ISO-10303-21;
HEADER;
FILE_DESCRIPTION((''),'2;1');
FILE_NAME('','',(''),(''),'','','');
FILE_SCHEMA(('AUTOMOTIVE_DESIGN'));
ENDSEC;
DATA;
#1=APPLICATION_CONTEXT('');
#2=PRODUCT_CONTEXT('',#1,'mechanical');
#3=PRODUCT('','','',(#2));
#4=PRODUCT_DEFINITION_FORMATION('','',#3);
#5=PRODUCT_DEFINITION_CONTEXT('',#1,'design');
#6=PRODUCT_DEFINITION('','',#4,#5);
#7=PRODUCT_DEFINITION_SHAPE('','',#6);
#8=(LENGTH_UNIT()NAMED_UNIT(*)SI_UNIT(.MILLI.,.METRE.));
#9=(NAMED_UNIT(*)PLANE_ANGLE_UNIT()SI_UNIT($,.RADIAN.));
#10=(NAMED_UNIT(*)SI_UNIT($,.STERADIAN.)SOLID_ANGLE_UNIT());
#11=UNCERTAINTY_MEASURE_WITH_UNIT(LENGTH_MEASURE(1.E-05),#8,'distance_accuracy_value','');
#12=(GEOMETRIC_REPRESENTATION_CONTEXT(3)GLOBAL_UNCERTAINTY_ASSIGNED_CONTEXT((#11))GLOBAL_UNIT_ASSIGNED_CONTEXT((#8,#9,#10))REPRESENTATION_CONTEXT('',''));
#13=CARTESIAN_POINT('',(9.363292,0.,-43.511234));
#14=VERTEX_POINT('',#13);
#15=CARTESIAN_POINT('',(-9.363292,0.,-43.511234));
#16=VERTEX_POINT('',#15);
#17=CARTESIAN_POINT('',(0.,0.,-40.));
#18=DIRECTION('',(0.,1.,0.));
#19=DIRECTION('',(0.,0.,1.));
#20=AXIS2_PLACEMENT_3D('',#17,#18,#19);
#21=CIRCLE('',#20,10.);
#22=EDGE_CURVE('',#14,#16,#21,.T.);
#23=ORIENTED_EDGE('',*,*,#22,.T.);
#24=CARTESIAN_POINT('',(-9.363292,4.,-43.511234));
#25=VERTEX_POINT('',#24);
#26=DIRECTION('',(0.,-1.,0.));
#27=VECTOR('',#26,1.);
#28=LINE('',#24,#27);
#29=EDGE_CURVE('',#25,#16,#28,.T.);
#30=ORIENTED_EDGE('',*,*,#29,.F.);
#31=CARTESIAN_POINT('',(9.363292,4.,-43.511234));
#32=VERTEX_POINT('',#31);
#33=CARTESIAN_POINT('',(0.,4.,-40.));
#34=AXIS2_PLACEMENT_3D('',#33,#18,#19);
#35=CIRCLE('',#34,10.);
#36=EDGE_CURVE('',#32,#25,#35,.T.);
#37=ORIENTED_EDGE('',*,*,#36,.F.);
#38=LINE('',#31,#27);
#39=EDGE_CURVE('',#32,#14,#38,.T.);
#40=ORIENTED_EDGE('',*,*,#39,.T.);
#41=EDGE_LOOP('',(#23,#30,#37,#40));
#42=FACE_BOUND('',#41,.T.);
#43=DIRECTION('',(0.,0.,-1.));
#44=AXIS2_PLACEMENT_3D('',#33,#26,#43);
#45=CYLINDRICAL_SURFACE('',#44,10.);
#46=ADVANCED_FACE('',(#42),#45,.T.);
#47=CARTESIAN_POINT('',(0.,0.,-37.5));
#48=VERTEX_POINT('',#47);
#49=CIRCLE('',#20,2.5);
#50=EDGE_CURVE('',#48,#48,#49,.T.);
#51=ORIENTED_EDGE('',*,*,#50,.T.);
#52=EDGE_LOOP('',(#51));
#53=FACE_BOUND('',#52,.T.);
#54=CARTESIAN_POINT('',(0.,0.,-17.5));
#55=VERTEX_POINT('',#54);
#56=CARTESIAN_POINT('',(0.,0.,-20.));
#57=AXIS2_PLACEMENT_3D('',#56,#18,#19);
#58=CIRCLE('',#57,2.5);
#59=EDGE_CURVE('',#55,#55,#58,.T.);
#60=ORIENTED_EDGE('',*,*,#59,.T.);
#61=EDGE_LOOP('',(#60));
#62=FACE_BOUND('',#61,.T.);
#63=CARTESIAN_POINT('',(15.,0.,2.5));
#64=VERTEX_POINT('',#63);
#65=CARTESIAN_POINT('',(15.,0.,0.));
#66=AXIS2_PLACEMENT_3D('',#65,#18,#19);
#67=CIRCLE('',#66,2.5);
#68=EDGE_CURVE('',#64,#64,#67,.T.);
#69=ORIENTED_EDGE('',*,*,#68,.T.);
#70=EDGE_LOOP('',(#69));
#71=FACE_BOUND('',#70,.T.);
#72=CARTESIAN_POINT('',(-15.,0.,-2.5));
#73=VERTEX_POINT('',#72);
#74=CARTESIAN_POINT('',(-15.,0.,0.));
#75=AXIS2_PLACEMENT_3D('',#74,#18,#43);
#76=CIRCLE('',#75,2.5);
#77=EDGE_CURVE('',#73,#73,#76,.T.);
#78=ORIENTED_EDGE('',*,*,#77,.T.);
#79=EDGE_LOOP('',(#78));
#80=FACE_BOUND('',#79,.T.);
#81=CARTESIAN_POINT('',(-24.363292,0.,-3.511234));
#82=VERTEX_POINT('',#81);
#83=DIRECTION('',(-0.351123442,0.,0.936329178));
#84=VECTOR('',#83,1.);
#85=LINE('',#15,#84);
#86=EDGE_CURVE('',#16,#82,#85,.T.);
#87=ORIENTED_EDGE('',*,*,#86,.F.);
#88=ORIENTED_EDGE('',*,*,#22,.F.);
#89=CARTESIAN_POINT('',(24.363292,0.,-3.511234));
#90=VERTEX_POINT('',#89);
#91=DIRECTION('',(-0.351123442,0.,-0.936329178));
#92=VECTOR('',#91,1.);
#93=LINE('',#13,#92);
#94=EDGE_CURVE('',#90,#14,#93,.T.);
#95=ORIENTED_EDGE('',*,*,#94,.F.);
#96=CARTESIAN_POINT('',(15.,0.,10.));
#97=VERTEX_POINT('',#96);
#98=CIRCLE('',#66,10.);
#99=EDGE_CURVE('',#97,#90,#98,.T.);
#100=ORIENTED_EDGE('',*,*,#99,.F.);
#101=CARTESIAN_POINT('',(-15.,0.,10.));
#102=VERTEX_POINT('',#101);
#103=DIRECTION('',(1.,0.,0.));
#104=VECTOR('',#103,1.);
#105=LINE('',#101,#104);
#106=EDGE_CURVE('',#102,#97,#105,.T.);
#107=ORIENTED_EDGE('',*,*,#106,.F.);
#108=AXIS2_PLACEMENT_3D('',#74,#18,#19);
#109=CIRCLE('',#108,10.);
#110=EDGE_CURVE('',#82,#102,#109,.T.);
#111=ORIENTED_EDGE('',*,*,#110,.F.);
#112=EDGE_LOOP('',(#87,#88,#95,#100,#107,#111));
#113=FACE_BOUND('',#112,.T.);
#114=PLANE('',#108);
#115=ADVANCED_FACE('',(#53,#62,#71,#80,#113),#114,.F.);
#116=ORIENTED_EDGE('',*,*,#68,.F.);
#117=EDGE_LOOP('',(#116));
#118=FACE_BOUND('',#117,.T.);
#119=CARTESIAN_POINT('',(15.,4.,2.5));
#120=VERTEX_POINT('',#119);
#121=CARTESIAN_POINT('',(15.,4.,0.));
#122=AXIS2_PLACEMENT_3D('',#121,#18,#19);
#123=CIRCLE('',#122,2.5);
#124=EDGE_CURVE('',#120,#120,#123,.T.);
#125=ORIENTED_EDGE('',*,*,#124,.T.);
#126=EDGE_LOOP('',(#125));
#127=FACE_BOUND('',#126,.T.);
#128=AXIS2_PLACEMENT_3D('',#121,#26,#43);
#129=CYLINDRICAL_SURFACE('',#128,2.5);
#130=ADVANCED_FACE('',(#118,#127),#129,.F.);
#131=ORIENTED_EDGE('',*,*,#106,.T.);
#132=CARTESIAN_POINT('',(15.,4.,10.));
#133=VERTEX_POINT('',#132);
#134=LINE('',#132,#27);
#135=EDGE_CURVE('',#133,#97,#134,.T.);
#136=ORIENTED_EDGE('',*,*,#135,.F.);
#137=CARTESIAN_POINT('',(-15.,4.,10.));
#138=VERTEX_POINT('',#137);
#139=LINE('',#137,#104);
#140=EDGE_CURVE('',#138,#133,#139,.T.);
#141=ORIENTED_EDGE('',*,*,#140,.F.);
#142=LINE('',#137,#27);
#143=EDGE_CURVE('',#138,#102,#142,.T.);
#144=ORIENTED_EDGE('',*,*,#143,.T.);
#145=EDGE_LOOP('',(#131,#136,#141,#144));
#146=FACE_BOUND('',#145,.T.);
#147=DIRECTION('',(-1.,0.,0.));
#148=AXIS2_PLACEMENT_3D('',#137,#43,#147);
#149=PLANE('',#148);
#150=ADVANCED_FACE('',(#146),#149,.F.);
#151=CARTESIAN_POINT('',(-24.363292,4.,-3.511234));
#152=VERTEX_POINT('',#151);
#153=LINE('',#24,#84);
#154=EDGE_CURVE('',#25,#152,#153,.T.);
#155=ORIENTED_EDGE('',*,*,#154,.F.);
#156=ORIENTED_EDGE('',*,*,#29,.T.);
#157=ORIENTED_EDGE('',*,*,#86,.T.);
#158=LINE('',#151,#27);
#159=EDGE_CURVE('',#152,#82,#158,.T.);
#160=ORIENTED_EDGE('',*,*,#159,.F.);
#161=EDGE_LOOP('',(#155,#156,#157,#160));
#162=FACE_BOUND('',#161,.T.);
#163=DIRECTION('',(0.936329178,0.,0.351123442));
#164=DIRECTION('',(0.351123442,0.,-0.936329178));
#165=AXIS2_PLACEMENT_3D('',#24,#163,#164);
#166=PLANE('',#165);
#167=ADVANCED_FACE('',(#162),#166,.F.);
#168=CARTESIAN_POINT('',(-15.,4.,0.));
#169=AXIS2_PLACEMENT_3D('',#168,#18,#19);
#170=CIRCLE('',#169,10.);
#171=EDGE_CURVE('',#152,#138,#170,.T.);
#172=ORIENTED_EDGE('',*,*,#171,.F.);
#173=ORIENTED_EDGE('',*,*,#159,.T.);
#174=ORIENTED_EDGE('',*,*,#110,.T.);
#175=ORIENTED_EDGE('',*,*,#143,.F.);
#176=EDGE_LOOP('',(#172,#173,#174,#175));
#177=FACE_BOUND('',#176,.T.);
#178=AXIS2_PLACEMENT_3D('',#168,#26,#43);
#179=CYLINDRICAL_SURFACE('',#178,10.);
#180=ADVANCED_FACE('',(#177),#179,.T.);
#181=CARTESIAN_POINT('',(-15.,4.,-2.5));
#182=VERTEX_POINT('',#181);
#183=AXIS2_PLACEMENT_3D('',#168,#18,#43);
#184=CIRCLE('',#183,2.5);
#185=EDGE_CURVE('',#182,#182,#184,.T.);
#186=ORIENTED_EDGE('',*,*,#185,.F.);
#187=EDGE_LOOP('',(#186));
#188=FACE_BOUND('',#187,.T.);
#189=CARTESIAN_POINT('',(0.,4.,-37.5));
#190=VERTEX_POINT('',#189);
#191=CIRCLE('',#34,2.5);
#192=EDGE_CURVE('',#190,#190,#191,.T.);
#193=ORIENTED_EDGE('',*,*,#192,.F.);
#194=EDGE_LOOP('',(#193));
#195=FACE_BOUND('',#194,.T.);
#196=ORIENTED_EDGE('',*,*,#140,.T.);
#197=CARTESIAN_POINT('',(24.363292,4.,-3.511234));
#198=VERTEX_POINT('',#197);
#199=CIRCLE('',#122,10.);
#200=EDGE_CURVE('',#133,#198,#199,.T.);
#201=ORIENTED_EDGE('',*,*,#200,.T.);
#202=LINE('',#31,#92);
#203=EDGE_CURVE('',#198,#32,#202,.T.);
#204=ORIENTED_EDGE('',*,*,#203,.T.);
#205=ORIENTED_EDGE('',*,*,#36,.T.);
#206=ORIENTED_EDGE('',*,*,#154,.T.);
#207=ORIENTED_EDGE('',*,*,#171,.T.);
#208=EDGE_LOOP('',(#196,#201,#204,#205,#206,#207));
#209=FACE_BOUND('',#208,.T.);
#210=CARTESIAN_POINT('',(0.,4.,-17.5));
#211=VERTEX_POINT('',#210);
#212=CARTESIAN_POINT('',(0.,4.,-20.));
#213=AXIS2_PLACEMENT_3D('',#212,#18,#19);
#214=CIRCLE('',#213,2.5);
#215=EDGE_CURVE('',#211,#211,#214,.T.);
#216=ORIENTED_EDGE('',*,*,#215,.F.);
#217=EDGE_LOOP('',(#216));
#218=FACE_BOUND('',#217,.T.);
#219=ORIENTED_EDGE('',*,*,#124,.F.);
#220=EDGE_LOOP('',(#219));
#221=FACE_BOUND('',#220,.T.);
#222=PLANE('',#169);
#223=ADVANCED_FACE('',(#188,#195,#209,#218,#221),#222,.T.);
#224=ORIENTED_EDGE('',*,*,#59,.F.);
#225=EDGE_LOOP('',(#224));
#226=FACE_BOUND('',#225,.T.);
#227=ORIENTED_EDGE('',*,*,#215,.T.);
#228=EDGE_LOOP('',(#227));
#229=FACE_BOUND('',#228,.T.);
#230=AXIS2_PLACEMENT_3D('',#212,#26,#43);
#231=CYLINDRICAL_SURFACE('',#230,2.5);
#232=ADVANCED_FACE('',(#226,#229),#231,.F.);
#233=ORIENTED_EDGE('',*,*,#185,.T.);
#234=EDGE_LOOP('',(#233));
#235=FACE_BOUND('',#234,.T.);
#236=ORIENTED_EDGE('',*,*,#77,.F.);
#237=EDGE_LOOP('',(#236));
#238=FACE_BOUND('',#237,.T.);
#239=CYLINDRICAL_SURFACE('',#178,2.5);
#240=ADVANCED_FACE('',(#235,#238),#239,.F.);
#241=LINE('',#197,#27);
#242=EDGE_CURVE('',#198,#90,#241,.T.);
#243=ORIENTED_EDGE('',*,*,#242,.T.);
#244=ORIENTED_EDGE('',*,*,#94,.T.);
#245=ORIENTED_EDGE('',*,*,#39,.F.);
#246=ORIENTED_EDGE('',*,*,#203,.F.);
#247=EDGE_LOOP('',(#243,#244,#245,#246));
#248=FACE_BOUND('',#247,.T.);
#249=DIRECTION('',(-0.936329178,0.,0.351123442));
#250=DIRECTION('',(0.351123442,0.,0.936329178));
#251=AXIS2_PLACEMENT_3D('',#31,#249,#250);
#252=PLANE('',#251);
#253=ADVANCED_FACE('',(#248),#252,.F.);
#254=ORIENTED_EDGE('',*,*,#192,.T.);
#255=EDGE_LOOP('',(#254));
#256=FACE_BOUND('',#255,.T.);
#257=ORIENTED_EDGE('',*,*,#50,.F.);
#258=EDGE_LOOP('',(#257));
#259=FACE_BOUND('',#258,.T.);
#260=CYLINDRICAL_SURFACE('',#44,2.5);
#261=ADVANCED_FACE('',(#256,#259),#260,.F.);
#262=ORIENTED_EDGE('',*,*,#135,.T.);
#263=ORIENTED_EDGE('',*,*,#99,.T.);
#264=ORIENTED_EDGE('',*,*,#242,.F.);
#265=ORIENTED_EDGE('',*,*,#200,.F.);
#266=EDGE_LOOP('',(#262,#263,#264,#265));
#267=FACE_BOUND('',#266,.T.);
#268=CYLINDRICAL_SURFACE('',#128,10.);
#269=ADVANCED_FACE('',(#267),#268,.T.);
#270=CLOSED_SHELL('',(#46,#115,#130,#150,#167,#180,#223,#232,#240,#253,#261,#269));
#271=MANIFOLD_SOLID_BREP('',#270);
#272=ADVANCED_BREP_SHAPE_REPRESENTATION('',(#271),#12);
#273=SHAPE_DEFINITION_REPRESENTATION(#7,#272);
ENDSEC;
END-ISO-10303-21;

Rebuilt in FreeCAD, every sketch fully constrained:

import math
import FreeCAD as App
import Part
import Sketcher
from FreeCAD import Vector
Q = App.Units.Quantity

doc = App.newDocument("Part")
params = doc.addObject("Spreadsheet::Sheet", "Params")
for row, (alias, value) in enumerate([
    ("sketch1_diameter", "5 mm"),
    ("sketch1_radius", "10 mm"),
    ("sketch1_width", "30 mm"),
    ("pad1_length", "4 mm"),
], start=1):
    params.set(f"A{row}", alias)
    params.set(f"B{row}", "=" + value)
    params.setAlias(f"B{row}", alias)

body = doc.addObject("PartDesign::Body", "Body")

# Sketch on XZ plane
sketch1 = body.newObject("Sketcher::SketchObject", "Sketch")
sketch1.AttachmentSupport = (doc.getObject("XZ_Plane"), [""])
sketch1.MapMode = "FlatFace"
sketch1.addGeometry(Part.LineSegment(Vector(-9.4, -43.5, 0), Vector(-24.4, -3.5, 0)), False)
sketch1.addGeometry(Part.ArcOfCircle(Part.Circle(Vector(-15, 0, 0), Vector(0, 0, 1), 10), math.radians(90), math.radians(201)), False)
sketch1.addGeometry(Part.LineSegment(Vector(-15, 10, 0), Vector(15, 10, 0)), False)
sketch1.addGeometry(Part.ArcOfCircle(Part.Circle(Vector(15, 0, 0), Vector(0, 0, 1), 10), math.radians(-21), math.radians(90)), False)
sketch1.addGeometry(Part.LineSegment(Vector(24.4, -3.5, 0), Vector(9.4, -43.5, 0)), False)
sketch1.addGeometry(Part.ArcOfCircle(Part.Circle(Vector(0, -40, 0), Vector(0, 0, 1), 10), math.radians(-159), math.radians(-21)), False)
sketch1.addGeometry(Part.Circle(Vector(-15, 0, 0), Vector(0, 0, 1), 2.5), False)
sketch1.addGeometry(Part.Circle(Vector(15, 0, 0), Vector(0, 0, 1), 2.5), False)
sketch1.addGeometry(Part.Circle(Vector(0, -20, 0), Vector(0, 0, 1), 2.5), False)
sketch1.addGeometry(Part.Circle(Vector(0, -40, 0), Vector(0, 0, 1), 2.5), False)
sketch1.addConstraint(Sketcher.Constraint("Tangent", 0, 2, 1, 2))
sketch1.addConstraint(Sketcher.Constraint("Tangent", 1, 1, 2, 1))
sketch1.addConstraint(Sketcher.Constraint("Tangent", 2, 2, 3, 2))
sketch1.addConstraint(Sketcher.Constraint("Tangent", 3, 1, 4, 1))
sketch1.addConstraint(Sketcher.Constraint("Tangent", 4, 2, 5, 2))
sketch1.addConstraint(Sketcher.Constraint("Tangent", 5, 1, 0, 1))
sketch1.addConstraint(Sketcher.Constraint("Horizontal", 2))
sketch1.addConstraint(Sketcher.Constraint("Coincident", 6, 3, 1, 3))
sketch1.addConstraint(Sketcher.Constraint("Coincident", 7, 3, 3, 3))
sketch1.addConstraint(Sketcher.Constraint("Coincident", 9, 3, 5, 3))
sketch1.addConstraint(Sketcher.Constraint("Equal", 1, 3))
sketch1.addConstraint(Sketcher.Constraint("Equal", 3, 5))
sketch1.addConstraint(Sketcher.Constraint("Equal", 6, 7))
sketch1.addConstraint(Sketcher.Constraint("Equal", 7, 8))
sketch1.addConstraint(Sketcher.Constraint("Equal", 8, 9))
sketch1.addConstraint(Sketcher.Constraint("Symmetric", 1, 3, 3, 3, -1, 1))
sketch1.addConstraint(Sketcher.Constraint("PointOnObject", 5, 3, -2))
sketch1.addConstraint(Sketcher.Constraint("PointOnObject", 8, 3, -2))
sketch1.addConstraint(Sketcher.Constraint("Diameter", 6, Q("5 mm")))
sketch1.addConstraint(Sketcher.Constraint("Radius", 1, Q("10 mm")))
sketch1.addConstraint(Sketcher.Constraint("DistanceX", 2, 1, 2, 2, Q("30 mm")))
sketch1.addConstraint(Sketcher.Constraint("DistanceY", 5, 3, -1, 1, Q("40 mm")))
sketch1.addConstraint(Sketcher.Constraint("DistanceY", 8, 3, -1, 1, Q("20 mm")))
sketch1.setExpression("Constraints[18]", "Params.sketch1_diameter")
sketch1.setExpression("Constraints[19]", "Params.sketch1_radius")
sketch1.setExpression("Constraints[20]", "Params.sketch1_width")
pad1 = body.newObject("PartDesign::Pad", "Pad")
pad1.Profile = sketch1
pad1.setExpression("Length", "Params.pad1_length")
pad1.Reversed = True

doc.recompute()
